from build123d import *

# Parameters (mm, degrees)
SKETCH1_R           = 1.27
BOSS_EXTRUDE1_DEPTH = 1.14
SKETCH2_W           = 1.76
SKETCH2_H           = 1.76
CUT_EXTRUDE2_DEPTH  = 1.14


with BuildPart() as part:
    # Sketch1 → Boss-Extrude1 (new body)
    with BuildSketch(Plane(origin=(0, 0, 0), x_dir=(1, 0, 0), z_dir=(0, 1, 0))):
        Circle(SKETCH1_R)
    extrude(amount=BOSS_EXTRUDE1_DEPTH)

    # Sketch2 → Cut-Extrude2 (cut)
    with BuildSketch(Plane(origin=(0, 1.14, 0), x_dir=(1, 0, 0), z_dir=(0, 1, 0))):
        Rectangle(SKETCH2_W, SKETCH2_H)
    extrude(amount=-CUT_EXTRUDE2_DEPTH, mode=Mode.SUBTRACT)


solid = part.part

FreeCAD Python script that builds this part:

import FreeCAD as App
import Part
import Sketcher
Q = App.Units.Quantity


def add_polygon(sketch, points):
    """Adds a closed chain of lines whose ends are joined by coincident constraints."""
    first, n = sketch.GeometryCount, len(points)
    for a, b in zip(points, points[1:] + points[:1]):
        sketch.addGeometry(Part.LineSegment(App.Vector(*a, 0), App.Vector(*b, 0)), False)
    for i in range(n):
        sketch.addConstraint(Sketcher.Constraint("Coincident", first + i, 2, first + (i + 1) % n, 1))

doc = App.newDocument("Part")
body = doc.addObject("PartDesign::Body", "Body")

sketch1 = body.newObject("Sketcher::SketchObject", "Sketch")
sketch1.AttachmentSupport = (doc.getObject("XZ_Plane"), [""])
sketch1.MapMode = "FlatFace"
sketch1.addGeometry(Part.Circle(App.Vector(0, 0, 0), App.Vector(0, 0, 1), 1.3), False)
sketch1.addConstraint(Sketcher.Constraint("Coincident", 0, 3, -1, 1))
sketch1.addConstraint(Sketcher.Constraint("Diameter", 0, Q("0.1 in")))
pad1 = body.newObject("PartDesign::Pad", "Pad")
pad1.Profile = sketch1
pad1.Length = 1.14
pad1.Reversed = True

sketch2 = body.newObject("Sketcher::SketchObject", "Sketch001")
sketch2.AttachmentSupport = (doc.getObject("XZ_Plane"), [""])
sketch2.MapMode = "FlatFace"
sketch2.AttachmentOffset = App.Placement(App.Vector(0, 0, -1.14), App.Rotation())
add_polygon(sketch2, [(-0.9, -0.9), (-0.9, 0.9), (0.9, 0.9), (0.9, -0.9)])
sketch2.addConstraint(Sketcher.Constraint("Vertical", 0))
sketch2.addConstraint(Sketcher.Constraint("Horizontal", 1))
sketch2.addConstraint(Sketcher.Constraint("Vertical", 2))
sketch2.addConstraint(Sketcher.Constraint("Horizontal", 3))
sketch2.addConstraint(Sketcher.Constraint("Symmetric", 0, 2, 2, 2, -1, 1))
sketch2.addConstraint(Sketcher.Constraint("Equal", 3, 0))
sketch2.addConstraint(Sketcher.Constraint("DistanceX", 1, 1, 1, 2, Q("1.76 mm")))
pocket1 = body.newObject("PartDesign::Pocket", "Pocket")
pocket1.Profile = sketch2
pocket1.Length = 1.14
pocket1.Reversed = True

doc.recompute()
